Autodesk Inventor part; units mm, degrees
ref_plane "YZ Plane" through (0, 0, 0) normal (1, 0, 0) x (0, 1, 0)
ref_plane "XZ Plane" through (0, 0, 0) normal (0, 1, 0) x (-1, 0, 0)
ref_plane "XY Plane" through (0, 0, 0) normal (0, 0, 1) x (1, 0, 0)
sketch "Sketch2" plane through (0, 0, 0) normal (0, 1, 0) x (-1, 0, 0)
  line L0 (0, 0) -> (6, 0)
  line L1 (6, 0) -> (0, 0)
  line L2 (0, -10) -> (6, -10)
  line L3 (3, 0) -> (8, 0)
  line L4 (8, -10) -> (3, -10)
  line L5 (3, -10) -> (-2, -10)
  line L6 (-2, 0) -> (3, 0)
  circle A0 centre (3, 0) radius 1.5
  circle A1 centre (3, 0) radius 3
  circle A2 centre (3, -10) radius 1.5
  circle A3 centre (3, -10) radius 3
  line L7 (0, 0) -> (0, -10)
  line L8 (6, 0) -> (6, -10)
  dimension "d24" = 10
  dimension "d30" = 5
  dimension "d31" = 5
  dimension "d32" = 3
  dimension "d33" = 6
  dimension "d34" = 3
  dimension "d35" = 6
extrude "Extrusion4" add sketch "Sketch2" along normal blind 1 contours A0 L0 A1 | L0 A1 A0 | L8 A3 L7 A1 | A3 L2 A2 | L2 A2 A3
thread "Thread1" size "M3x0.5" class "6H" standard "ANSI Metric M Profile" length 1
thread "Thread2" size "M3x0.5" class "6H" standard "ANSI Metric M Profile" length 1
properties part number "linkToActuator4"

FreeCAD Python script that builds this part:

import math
import FreeCAD as App
import Part
import Sketcher
from FreeCAD import Vector
Q = App.Units.Quantity

doc = App.newDocument("Part")
body = doc.addObject("PartDesign::Body", "Body")

sketch1 = doc.addObject("Sketcher::SketchObject", "Sketch")
body.addObject(sketch1)
sketch1.AttachmentSupport = (doc.XZ_Plane, [""])
sketch1.MapMode = "FlatFace"
sketch1.addGeometry([
    Part.ArcOfCircle(Part.Circle(Vector(-3, 0, 0), Vector(0, 0, 1), 3), math.radians(0), math.radians(180)),
    Part.LineSegment(Vector(0, 0, 0), Vector(0, -10, 0)),
    Part.ArcOfCircle(Part.Circle(Vector(-3, -10, 0), Vector(0, 0, 1), 3), math.radians(180), math.radians(360)),
    Part.LineSegment(Vector(-6, -10, 0), Vector(-6, 0, 0)),
    Part.Circle(Vector(-3, 0, 0), Vector(0, 0, 1), 1.5),
    Part.Circle(Vector(-3, -10, 0), Vector(0, 0, 1), 1.5),
], False)
sketch1.addConstraint([
    Sketcher.Constraint("Tangent", 0, 1, 1, 1),
    Sketcher.Constraint("Tangent", 1, 2, 2, 2),
    Sketcher.Constraint("Tangent", 2, 1, 3, 1),
    Sketcher.Constraint("Tangent", 3, 2, 0, 2),
    Sketcher.Constraint("Vertical", 1),
    Sketcher.Constraint("Vertical", 3),
    Sketcher.Constraint("Coincident", 0, 1, -1, 1),
    Sketcher.Constraint("Coincident", 4, 3, 0, 3),
    Sketcher.Constraint("Coincident", 5, 3, 2, 3),
    Sketcher.Constraint("Equal", 4, 5),
    Sketcher.Constraint("Diameter", 4, Q("3 mm")),
    Sketcher.Constraint("Radius", 0, Q("3 mm")),
    Sketcher.Constraint("DistanceY", 1, 2, 1, 1, Q("10 mm")),
])
pad1 = doc.addObject("PartDesign::Pad", "Pad")
body.addObject(pad1)
pad1.Profile = sketch1
pad1.Length = 1
pad1.Reversed = True

doc.recompute()
